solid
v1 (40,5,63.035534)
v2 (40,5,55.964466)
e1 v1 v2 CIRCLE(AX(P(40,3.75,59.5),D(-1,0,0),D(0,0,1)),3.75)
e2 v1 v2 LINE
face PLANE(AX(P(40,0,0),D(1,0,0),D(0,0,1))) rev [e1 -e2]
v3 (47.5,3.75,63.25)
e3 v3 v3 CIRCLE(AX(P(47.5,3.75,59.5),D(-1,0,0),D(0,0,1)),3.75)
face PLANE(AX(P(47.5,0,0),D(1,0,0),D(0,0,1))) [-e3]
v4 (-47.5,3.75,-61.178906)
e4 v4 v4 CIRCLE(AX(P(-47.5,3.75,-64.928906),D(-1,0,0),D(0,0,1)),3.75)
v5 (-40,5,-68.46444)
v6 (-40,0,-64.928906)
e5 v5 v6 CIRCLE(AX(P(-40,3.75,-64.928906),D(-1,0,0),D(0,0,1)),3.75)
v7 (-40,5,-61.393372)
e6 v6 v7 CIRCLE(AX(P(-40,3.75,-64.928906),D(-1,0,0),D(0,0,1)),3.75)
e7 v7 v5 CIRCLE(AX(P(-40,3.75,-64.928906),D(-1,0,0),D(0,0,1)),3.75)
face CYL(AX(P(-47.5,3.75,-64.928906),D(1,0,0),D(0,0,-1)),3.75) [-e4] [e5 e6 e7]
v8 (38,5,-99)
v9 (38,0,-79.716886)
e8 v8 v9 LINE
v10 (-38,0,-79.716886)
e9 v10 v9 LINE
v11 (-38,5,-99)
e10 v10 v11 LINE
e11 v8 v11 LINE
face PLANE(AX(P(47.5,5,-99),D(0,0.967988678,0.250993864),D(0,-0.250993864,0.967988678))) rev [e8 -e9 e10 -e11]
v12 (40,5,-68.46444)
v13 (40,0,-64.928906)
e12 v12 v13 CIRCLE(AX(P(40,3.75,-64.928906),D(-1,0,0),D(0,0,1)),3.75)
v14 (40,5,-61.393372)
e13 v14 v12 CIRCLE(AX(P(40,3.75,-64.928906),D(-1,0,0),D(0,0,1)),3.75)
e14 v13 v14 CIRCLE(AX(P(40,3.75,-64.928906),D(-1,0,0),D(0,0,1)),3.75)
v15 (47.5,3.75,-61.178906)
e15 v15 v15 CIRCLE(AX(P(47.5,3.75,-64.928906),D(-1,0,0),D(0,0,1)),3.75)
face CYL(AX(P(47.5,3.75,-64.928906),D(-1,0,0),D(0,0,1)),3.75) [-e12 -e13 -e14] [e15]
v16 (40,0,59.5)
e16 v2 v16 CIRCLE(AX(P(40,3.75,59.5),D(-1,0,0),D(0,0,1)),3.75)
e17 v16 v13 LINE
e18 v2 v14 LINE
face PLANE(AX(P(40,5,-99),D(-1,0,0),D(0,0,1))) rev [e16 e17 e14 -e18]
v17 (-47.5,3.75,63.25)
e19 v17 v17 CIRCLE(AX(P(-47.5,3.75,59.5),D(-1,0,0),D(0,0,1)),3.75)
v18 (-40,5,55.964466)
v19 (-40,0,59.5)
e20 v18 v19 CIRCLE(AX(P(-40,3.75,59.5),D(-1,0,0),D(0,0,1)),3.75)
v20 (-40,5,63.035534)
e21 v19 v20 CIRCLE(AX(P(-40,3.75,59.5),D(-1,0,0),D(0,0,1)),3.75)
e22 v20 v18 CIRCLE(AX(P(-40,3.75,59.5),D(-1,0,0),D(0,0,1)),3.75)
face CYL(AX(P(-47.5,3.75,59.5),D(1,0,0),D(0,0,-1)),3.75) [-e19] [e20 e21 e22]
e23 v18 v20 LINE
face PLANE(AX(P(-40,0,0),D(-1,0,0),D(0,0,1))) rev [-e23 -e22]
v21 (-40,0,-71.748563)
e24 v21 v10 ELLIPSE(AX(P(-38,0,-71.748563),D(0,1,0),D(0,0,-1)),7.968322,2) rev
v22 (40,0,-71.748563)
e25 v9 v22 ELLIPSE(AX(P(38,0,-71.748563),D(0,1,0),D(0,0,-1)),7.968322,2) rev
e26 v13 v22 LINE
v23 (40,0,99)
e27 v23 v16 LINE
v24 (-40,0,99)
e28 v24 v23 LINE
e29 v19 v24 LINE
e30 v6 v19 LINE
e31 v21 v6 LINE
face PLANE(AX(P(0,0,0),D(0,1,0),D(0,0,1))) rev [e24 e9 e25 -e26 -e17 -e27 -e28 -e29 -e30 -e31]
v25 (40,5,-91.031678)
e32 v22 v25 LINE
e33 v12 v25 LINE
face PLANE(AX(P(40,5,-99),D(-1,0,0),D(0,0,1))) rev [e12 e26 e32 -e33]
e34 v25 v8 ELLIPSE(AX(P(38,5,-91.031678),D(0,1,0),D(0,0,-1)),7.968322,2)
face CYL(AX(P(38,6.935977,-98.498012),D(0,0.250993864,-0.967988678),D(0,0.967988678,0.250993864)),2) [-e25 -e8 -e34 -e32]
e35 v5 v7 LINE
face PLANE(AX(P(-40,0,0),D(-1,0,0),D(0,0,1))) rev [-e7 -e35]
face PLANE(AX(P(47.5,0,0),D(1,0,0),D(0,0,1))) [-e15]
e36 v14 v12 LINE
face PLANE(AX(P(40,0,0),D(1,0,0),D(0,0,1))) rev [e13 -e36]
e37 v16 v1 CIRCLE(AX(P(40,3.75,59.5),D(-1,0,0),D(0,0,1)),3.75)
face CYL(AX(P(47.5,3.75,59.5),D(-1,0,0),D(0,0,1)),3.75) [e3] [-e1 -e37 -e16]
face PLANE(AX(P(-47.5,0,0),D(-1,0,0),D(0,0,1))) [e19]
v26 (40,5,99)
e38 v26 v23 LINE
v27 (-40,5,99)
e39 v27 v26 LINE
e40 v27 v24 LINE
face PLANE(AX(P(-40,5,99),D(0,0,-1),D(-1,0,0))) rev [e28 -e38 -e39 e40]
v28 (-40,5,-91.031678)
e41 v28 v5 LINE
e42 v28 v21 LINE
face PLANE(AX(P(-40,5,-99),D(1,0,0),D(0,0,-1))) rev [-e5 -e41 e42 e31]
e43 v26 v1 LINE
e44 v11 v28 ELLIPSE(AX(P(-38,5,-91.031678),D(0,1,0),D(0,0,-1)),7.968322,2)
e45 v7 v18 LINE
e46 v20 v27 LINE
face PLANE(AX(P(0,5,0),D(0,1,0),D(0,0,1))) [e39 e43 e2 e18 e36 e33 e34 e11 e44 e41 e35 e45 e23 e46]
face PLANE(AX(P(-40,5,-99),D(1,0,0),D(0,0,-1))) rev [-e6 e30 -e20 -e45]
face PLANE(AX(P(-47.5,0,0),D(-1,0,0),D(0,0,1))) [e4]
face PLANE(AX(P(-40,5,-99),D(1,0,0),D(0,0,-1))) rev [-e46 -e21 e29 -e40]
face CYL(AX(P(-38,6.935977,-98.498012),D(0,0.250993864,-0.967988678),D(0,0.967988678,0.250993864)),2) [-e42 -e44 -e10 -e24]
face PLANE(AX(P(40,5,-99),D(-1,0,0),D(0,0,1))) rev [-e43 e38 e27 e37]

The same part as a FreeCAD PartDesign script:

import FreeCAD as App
import Part
import Sketcher

V = App.Vector
Q = App.Units.Quantity


def edges_at(feature, points):
    """Names of the edges that pass closest to the given points."""
    edges = feature.Shape.Edges
    near = lambda p: min(range(len(edges)), key=lambda i: edges[i].distToShape(Part.Vertex(*p))[0])
    return sorted({f"Edge{near(p) + 1}" for p in points})


def add_polygon(sketch, points):
    """Adds a closed chain of lines whose ends are joined by coincident constraints."""
    first, n = sketch.GeometryCount, len(points)
    for a, b in zip(points, points[1:] + points[:1]):
        sketch.addGeometry(Part.LineSegment(App.Vector(*a, 0), App.Vector(*b, 0)), False)
    for i in range(n):
        sketch.addConstraint(Sketcher.Constraint("Coincident", first + i, 2, first + (i + 1) % n, 1))

doc = App.newDocument("Part")
body = doc.addObject("PartDesign::Body", "Body")

# Sketch on XZ plane
sketch1 = body.newObject("Sketcher::SketchObject", "Sketch")
sketch1.AttachmentSupport = (doc.getObject("XZ_Plane"), [""])
sketch1.MapMode = "FlatFace"
add_polygon(sketch1, [(-40, -99), (-40, 99), (40, 99), (40, -99)])  # lines 0-3
sketch1.addConstraint(Sketcher.Constraint("Vertical", 0))
sketch1.addConstraint(Sketcher.Constraint("Horizontal", 1))
sketch1.addConstraint(Sketcher.Constraint("Vertical", 2))
sketch1.addConstraint(Sketcher.Constraint("Horizontal", 3))
sketch1.addConstraint(Sketcher.Constraint("Symmetric", 0, 2, 2, 2, -1, 1))
sketch1.addConstraint(Sketcher.Constraint("DistanceX", 1, 1, 1, 2, Q("80 mm")))
sketch1.addConstraint(Sketcher.Constraint("DistanceY", 0, 1, 0, 2, Q("198 mm")))
pad1 = body.newObject("PartDesign::Pad", "Pad")
pad1.Profile = sketch1
pad1.Length = 5
pad1.Reversed = True

# Sketch on YZ plane
sketch2 = body.newObject("Sketcher::SketchObject", "Sketch001")
sketch2.AttachmentSupport = (doc.getObject("YZ_Plane"), [""])
sketch2.MapMode = "FlatFace"
sketch2.AttachmentOffset = App.Placement(V(0, 0, -40), App.Rotation())
sketch2.addGeometry(Part.Circle(V(3.8, -64.9, 0), V(0, 0, 1), 3.8), False)
sketch2.addGeometry(Part.Circle(V(3.8, 59.5, 0), V(0, 0, 1), 3.8), False)
sketch2.addConstraint(Sketcher.Constraint("Equal", 0, 1))
sketch2.addConstraint(Sketcher.Constraint("Vertical", 0, 3, 1, 3))
sketch2.addConstraint(Sketcher.Constraint("Diameter", 0, Q("7.5 mm")))
sketch2.addConstraint(Sketcher.Constraint("DistanceY", -1, 1, 1, 3, Q("59.5 mm")))
sketch2.addConstraint(Sketcher.Constraint("DistanceX", -1, 1, 0, 3, Q("3.75 mm")))
sketch2.addConstraint(Sketcher.Constraint("DistanceY", 0, 3, -1, 1, Q("64.928906 mm")))
pad2 = body.newObject("PartDesign::Pad", "Pad001")
pad2.Profile = sketch2
pad2.Length = 7.5
pad2.Reversed = True
doc.recompute()

mirrored = body.newObject("PartDesign::Mirrored", "Mirrored")
mirrored.Originals = [pad2]
mirrored.MirrorPlane = (doc.getObject("YZ_Plane"), [""])
body.Tip = mirrored

# Sketch on YZ plane
sketch3 = body.newObject("Sketcher::SketchObject", "Sketch002")
sketch3.AttachmentSupport = (doc.getObject("YZ_Plane"), [""])
sketch3.MapMode = "FlatFace"
sketch3.AttachmentOffset = App.Placement(V(0, 0, -40), App.Rotation())
add_polygon(sketch3, [(-2, -73), (5, -99), (-2, -104)])  # lines 0-2
sketch3.addConstraint(Sketcher.Constraint("Vertical", 2))
sketch3.addConstraint(Sketcher.Constraint("DistanceX", -1, 1, 0, 2, Q("5 mm")))
sketch3.addConstraint(Sketcher.Constraint("DistanceY", 0, 2, -1, 1, Q("99 mm")))
sketch3.addConstraint(Sketcher.Constraint("DistanceY", 2, 1, 2, 2, Q("30.866798 mm")))
sketch3.addConstraint(Sketcher.Constraint("Distance", 1, Q("8.289721 mm")))
sketch3.addConstraint(Sketcher.Constraint("DistanceX", 1, 2, -1, 1, Q("1.759148 mm")))
pocket1 = body.newObject("PartDesign::Pocket", "Pocket")
pocket1.Profile = sketch3
pocket1.Type = "ThroughAll"
pocket1.Reversed = True
doc.recompute()

fillet = body.newObject("PartDesign::Fillet", "Fillet")
fillet.Base = (pocket1, edges_at(pocket1, [(40, 2.5, -89.358), (-40, 2.5, -89.358)]))
fillet.Radius = 2

doc.recompute()
